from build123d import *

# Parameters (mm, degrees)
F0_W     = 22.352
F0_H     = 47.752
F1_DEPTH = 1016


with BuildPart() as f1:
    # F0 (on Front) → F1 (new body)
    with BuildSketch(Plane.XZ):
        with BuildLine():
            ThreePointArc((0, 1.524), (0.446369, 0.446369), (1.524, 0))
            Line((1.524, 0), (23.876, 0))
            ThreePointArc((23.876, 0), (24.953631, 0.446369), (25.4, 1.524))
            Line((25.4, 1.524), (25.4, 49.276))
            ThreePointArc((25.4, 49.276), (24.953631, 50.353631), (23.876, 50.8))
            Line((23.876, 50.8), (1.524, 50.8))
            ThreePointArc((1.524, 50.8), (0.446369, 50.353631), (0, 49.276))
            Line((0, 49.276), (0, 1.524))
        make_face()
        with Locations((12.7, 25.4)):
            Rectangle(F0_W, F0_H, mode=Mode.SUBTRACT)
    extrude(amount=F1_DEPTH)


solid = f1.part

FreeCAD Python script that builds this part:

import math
import FreeCAD as App
import Part
import Sketcher
from FreeCAD import Vector
Q = App.Units.Quantity


def add_polygon(sketch, points):
    """Adds a closed chain of lines whose ends are joined by coincident constraints."""
    first, n = sketch.GeometryCount, len(points)
    for a, b in zip(points, points[1:] + points[:1]):
        sketch.addGeometry(Part.LineSegment(App.Vector(*a, 0), App.Vector(*b, 0)), False)
    for i in range(n):
        sketch.addConstraint(Sketcher.Constraint("Coincident", first + i, 2, first + (i + 1) % n, 1))

doc = App.newDocument("Part")
params = doc.addObject("Spreadsheet::Sheet", "Params")
for row, (alias, value) in enumerate([
    ("sketch1_radius", "0.06 in"),
    ("pad1_length", "40 in"),
], start=1):
    params.set(f"A{row}", alias)
    params.set(f"B{row}", "=" + value)
    params.setAlias(f"B{row}", alias)

body = doc.addObject("PartDesign::Body", "Body")

# Sketch on XZ plane
sketch1 = doc.addObject("Sketcher::SketchObject", "Sketch")
body.addObject(sketch1)
sketch1.AttachmentSupport = (doc.XZ_Plane, [""])
sketch1.MapMode = "FlatFace"
sketch1.addGeometry(Part.ArcOfCircle(Part.Circle(Vector(1.523999, 1.523999, 0), Vector(0, 0, 1), 1.523999), math.radians(179.999966), math.radians(270.000034)), False)  # 0
sketch1.addGeometry(Part.LineSegment(Vector(1.524, 0, 0), Vector(23.876, 0, 0)), False)  # 1
sketch1.addGeometry(Part.ArcOfCircle(Part.Circle(Vector(23.876001, 1.523999, 0), Vector(0, 0, 1), 1.523999), math.radians(-90.000034), math.radians(0.000034)), False)  # 2
sketch1.addGeometry(Part.LineSegment(Vector(25.4, 1.524, 0), Vector(25.4, 49.276, 0)), False)  # 3
sketch1.addGeometry(Part.ArcOfCircle(Part.Circle(Vector(23.876001, 49.276001, 0), Vector(0, 0, 1), 1.523999), math.radians(-0.000034), math.radians(90.000034)), False)  # 4
sketch1.addGeometry(Part.LineSegment(Vector(23.876, 50.8, 0), Vector(1.524, 50.8, 0)), False)  # 5
sketch1.addGeometry(Part.ArcOfCircle(Part.Circle(Vector(1.523999, 49.276001, 0), Vector(0, 0, 1), 1.523999), math.radians(89.999966), math.radians(180.000034)), False)  # 6
sketch1.addGeometry(Part.LineSegment(Vector(0, 49.276, 0), Vector(0, 1.524, 0)), False)  # 7
add_polygon(sketch1, [(23.876, 1.524), (1.524, 1.524), (1.524, 49.276), (23.876, 49.276)])  # lines 8-11
sketch1.addConstraint(Sketcher.Constraint("Tangent", 0, 2, 1, 1))
sketch1.addConstraint(Sketcher.Constraint("Tangent", 1, 2, 2, 1))
sketch1.addConstraint(Sketcher.Constraint("Tangent", 2, 2, 3, 1))
sketch1.addConstraint(Sketcher.Constraint("Tangent", 3, 2, 4, 1))
sketch1.addConstraint(Sketcher.Constraint("Tangent", 4, 2, 5, 1))
sketch1.addConstraint(Sketcher.Constraint("Tangent", 5, 2, 6, 1))
sketch1.addConstraint(Sketcher.Constraint("Tangent", 6, 2, 7, 1))
sketch1.addConstraint(Sketcher.Constraint("Tangent", 7, 2, 0, 1))
sketch1.addConstraint(Sketcher.Constraint("Horizontal", 1))
sketch1.addConstraint(Sketcher.Constraint("Vertical", 3))
sketch1.addConstraint(Sketcher.Constraint("Horizontal", 5))
sketch1.addConstraint(Sketcher.Constraint("Vertical", 7))
sketch1.addConstraint(Sketcher.Constraint("Horizontal", 8))
sketch1.addConstraint(Sketcher.Constraint("Vertical", 9))
sketch1.addConstraint(Sketcher.Constraint("Horizontal", 10))
sketch1.addConstraint(Sketcher.Constraint("Vertical", 11))
sketch1.addConstraint(Sketcher.Constraint("Coincident", 8, 2, 0, 3))
sketch1.addConstraint(Sketcher.Constraint("Coincident", 9, 2, 6, 3))
sketch1.addConstraint(Sketcher.Constraint("Coincident", 10, 2, 4, 3))
sketch1.addConstraint(Sketcher.Constraint("Equal", 0, 2))
sketch1.addConstraint(Sketcher.Constraint("PointOnObject", 0, 2, -1))
sketch1.addConstraint(Sketcher.Constraint("PointOnObject", 6, 2, -2))
sketch1.addConstraint(Sketcher.Constraint("Radius", 0, Q("0.06 in")))
sketch1.addConstraint(Sketcher.Constraint("DistanceX", -1, 1, 2, 2, Q("1 in")))
sketch1.addConstraint(Sketcher.Constraint("DistanceY", -1, 1, 4, 2, Q("2 in")))
sketch1.setExpression("Constraints[26]", "Params.sketch1_radius")
pad1 = doc.addObject("PartDesign::Pad", "Pad")
body.addObject(pad1)
pad1.Profile = sketch1
pad1.setExpression("Length", "Params.pad1_length")

doc.recompute()
